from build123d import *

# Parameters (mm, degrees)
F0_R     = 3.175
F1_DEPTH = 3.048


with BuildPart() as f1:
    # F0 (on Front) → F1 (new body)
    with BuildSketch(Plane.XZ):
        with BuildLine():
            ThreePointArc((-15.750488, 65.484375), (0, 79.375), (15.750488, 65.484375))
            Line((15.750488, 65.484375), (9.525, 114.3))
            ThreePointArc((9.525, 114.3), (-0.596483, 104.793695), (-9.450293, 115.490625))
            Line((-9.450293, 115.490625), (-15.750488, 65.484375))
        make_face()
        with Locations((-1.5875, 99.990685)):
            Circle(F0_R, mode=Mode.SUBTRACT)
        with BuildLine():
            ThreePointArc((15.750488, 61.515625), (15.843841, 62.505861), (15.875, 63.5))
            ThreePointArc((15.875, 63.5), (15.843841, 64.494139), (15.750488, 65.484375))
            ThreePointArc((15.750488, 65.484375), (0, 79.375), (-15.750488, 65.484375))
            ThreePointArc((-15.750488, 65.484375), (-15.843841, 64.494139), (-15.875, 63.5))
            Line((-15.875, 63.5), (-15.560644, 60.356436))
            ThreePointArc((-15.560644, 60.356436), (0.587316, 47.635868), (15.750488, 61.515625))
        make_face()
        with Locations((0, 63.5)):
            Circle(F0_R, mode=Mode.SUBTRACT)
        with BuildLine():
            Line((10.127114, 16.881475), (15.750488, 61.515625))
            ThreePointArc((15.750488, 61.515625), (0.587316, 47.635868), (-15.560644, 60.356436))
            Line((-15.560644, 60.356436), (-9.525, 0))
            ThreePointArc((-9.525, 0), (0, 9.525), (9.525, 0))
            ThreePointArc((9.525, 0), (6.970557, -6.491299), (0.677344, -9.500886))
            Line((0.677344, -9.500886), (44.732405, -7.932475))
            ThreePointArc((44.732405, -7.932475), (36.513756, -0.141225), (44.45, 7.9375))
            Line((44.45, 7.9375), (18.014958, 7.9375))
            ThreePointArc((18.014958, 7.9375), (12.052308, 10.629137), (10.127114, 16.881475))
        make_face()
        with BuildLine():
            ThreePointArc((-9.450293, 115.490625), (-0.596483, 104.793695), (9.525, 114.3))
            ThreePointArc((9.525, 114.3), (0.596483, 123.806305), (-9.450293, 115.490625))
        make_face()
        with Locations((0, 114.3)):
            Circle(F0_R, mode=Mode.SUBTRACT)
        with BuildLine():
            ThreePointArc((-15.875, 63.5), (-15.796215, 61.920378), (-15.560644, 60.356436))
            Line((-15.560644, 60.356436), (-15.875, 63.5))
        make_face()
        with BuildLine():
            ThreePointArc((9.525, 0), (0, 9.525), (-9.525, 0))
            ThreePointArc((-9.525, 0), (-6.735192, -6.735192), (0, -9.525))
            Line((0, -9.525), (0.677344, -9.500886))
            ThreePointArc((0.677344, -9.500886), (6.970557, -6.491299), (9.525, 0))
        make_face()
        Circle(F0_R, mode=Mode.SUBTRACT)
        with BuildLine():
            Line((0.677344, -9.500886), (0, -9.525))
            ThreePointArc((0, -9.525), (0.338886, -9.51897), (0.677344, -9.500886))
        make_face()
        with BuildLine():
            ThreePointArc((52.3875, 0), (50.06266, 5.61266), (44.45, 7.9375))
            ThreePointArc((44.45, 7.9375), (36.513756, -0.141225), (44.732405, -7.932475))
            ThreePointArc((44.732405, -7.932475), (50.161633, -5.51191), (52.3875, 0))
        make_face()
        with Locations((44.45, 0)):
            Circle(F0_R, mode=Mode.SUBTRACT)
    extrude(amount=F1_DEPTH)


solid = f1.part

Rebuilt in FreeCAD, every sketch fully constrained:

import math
import FreeCAD as App
import Part
import Sketcher
Q = App.Units.Quantity

doc = App.newDocument("Part")
params = doc.addObject("Spreadsheet::Sheet", "Params")
for row, (alias, value) in enumerate([
    ("sketch1_diameter", "0.25 in"),
    ("sketch1_diameter2", "0.25 in"),
    ("sketch1_diameter3", "0.25 in"),
    ("sketch1_diameter4", "0.25 in"),
    ("sketch1_diameter5", "0.25 in"),
    ("pad1_length", "0.12 in"),
], start=1):
    params.set(f"A{row}", alias)
    params.set(f"B{row}", "=" + value)
    params.setAlias(f"B{row}", alias)

body = doc.addObject("PartDesign::Body", "Body")

# Sketch on XZ plane
sketch1 = body.newObject("Sketcher::SketchObject", "Sketch")
sketch1.AttachmentSupport = (doc.getObject("XZ_Plane"), [""])
sketch1.MapMode = "FlatFace"
sketch1.addGeometry(Part.LineSegment(App.Vector(-9.450293, 115.490625, 0), App.Vector(-15.750488, 65.484375, 0)), False)
sketch1.addGeometry(Part.ArcOfCircle(Part.Circle(App.Vector(0.000171, 63.499987, 0), App.Vector(0, 0, 1), 15.875171), math.radians(172.819275), math.radians(179.999953)), False)
sketch1.addGeometry(Part.ArcOfCircle(Part.Circle(App.Vector(0.000105, 63.500009, 0), App.Vector(0, 0, 1), 15.875105), math.radians(-179.999968), math.radians(-168.57886)), False)
sketch1.addGeometry(Part.LineSegment(App.Vector(-15.560644, 60.356436, 0), App.Vector(-9.525, 0, 0)), False)
sketch1.addGeometry(Part.ArcOfCircle(Part.Circle(App.Vector(0, 0, 0), App.Vector(0, 0, 1), 9.525), math.radians(-179.999998), math.radians(-90.000002)), False)
sketch1.addGeometry(Part.ArcOfCircle(Part.Circle(App.Vector(0.000022, -0.000517, 0), App.Vector(0, 0, 1), 9.524483), math.radians(-90.000132), math.radians(-85.922038)), False)
sketch1.addGeometry(Part.LineSegment(App.Vector(0.677344, -9.500886, 0), App.Vector(44.732405, -7.932475, 0)), False)
sketch1.addGeometry(Part.ArcOfCircle(Part.Circle(App.Vector(44.449999, 0.000001, 0), App.Vector(0, 0, 1), 7.937501), math.radians(-87.961059), math.radians(-0.000005)), False)
sketch1.addGeometry(Part.ArcOfCircle(Part.Circle(App.Vector(44.45, 0, 0), App.Vector(0, 0, 1), 7.9375), math.radians(0.000002), math.radians(89.999998)), False)
sketch1.addGeometry(Part.LineSegment(App.Vector(44.45, 7.9375, 0), App.Vector(18.014958, 7.9375, 0)), False)
sketch1.addGeometry(Part.ArcOfCircle(Part.Circle(App.Vector(18.014958, 15.887699, 0), App.Vector(0, 0, 1), 7.950199), math.radians(172.819238), math.radians(270.000002)), False)
sketch1.addGeometry(Part.LineSegment(App.Vector(10.127114, 16.881475, 0), App.Vector(15.750488, 61.515625, 0)), False)
sketch1.addGeometry(Part.ArcOfCircle(Part.Circle(App.Vector(-0.000171, 63.500013, 0), App.Vector(0, 0, 1), 15.875171), math.radians(-7.180725), math.radians(-0.000047)), False)
sketch1.addGeometry(Part.ArcOfCircle(Part.Circle(App.Vector(-0.000171, 63.499987, 0), App.Vector(0, 0, 1), 15.875171), math.radians(0.000047), math.radians(7.180725)), False)
sketch1.addGeometry(Part.ArcOfCircle(Part.Circle(App.Vector(0, 63.5, 0), App.Vector(0, 0, 1), 15.875), math.radians(7.180755), math.radians(7.354717)), False)
sketch1.addGeometry(Part.LineSegment(App.Vector(15.74439, 65.532188, 0), App.Vector(9.525, 114.3, 0)), False)
sketch1.addGeometry(Part.ArcOfCircle(Part.Circle(App.Vector(0, 114.3, 0), App.Vector(0, 0, 1), 9.525), math.radians(0), math.radians(172.819245)), False)
sketch1.addGeometry(Part.Circle(App.Vector(0, 0, 0), App.Vector(0, 0, 1), 3.175), False)
sketch1.addGeometry(Part.Circle(App.Vector(44.45, 0, 0), App.Vector(0, 0, 1), 3.175), False)
sketch1.addGeometry(Part.Circle(App.Vector(0, 63.5, 0), App.Vector(0, 0, 1), 3.175), False)
sketch1.addGeometry(Part.Circle(App.Vector(-1.5875, 99.990685, 0), App.Vector(0, 0, 1), 3.175), False)
sketch1.addGeometry(Part.Circle(App.Vector(0, 114.3, 0), App.Vector(0, 0, 1), 3.175), False)
sketch1.addConstraint(Sketcher.Constraint("Coincident", 0, 2, 1, 1))
sketch1.addConstraint(Sketcher.Constraint("Coincident", 1, 2, 2, 1))
sketch1.addConstraint(Sketcher.Constraint("Coincident", 2, 2, 3, 1))
sketch1.addConstraint(Sketcher.Constraint("Coincident", 3, 2, 4, 1))
sketch1.addConstraint(Sketcher.Constraint("Coincident", 4, 2, 5, 1))
sketch1.addConstraint(Sketcher.Constraint("Coincident", 5, 2, 6, 1))
sketch1.addConstraint(Sketcher.Constraint("Coincident", 6, 2, 7, 1))
sketch1.addConstraint(Sketcher.Constraint("Coincident", 7, 2, 8, 1))
sketch1.addConstraint(Sketcher.Constraint("Coincident", 8, 2, 9, 1))
sketch1.addConstraint(Sketcher.Constraint("Coincident", 9, 2, 10, 2))
sketch1.addConstraint(Sketcher.Constraint("Coincident", 10, 1, 11, 1))
sketch1.addConstraint(Sketcher.Constraint("Coincident", 11, 2, 12, 1))
sketch1.addConstraint(Sketcher.Constraint("Coincident", 12, 2, 13, 1))
sketch1.addConstraint(Sketcher.Constraint("Coincident", 13, 2, 14, 1))
sketch1.addConstraint(Sketcher.Constraint("Coincident", 14, 2, 15, 1))
sketch1.addConstraint(Sketcher.Constraint("Coincident", 15, 2, 16, 1))
sketch1.addConstraint(Sketcher.Constraint("Coincident", 16, 2, 0, 1))
sketch1.addConstraint(Sketcher.Constraint("Horizontal", 9))
sketch1.addConstraint(Sketcher.Constraint("Coincident", 4, 3, -1, 1))
sketch1.addConstraint(Sketcher.Constraint("Coincident", 17, 3, -1, 1))
sketch1.addConstraint(Sketcher.Constraint("Coincident", 8, 3, 7, 3))
sketch1.addConstraint(Sketcher.Constraint("Coincident", 18, 3, 7, 3))
sketch1.addConstraint(Sketcher.Constraint("Coincident", 19, 3, 14, 3))
sketch1.addConstraint(Sketcher.Constraint("Coincident", 21, 3, 16, 3))
sketch1.addConstraint(Sketcher.Constraint("PointOnObject", 7, 3, -1))
sketch1.addConstraint(Sketcher.Constraint("PointOnObject", 14, 3, -2))
sketch1.addConstraint(Sketcher.Constraint("PointOnObject", 16, 3, -2))
sketch1.addConstraint(Sketcher.Constraint("PointOnObject", 3, 2, -1))
sketch1.addConstraint(Sketcher.Constraint("PointOnObject", 4, 2, -2))
sketch1.addConstraint(Sketcher.Constraint("PointOnObject", 7, 2, -1))
sketch1.addConstraint(Sketcher.Constraint("Diameter", 17, Q("0.25 in")))
sketch1.addConstraint(Sketcher.Constraint("Diameter", 18, Q("0.25 in")))
sketch1.addConstraint(Sketcher.Constraint("Diameter", 19, Q("0.25 in")))
sketch1.addConstraint(Sketcher.Constraint("Diameter", 20, Q("0.25 in")))
sketch1.addConstraint(Sketcher.Constraint("Diameter", 21, Q("0.25 in")))
sketch1.addConstraint(Sketcher.Constraint("Radius", 4, Q("0.375 in")))
sketch1.addConstraint(Sketcher.Constraint("Radius", 7, Q("0.3125 in")))
sketch1.addConstraint(Sketcher.Constraint("Radius", 10, Q("0.313 in")))
sketch1.addConstraint(Sketcher.Constraint("Radius", 14, Q("0.625 in")))
sketch1.addConstraint(Sketcher.Constraint("Radius", 16, Q("0.375 in")))
sketch1.addConstraint(Sketcher.Constraint("DistanceY", 14, 3, 16, 3, Q("2 in")))
sketch1.addConstraint(Sketcher.Constraint("DistanceY", -1, 1, 14, 3, Q("2.5 in")))
sketch1.addConstraint(Sketcher.Constraint("DistanceY", -1, 1, 1, 2, Q("2.5 in")))
sketch1.addConstraint(Sketcher.Constraint("DistanceY", -1, 1, 12, 2, Q("2.5 in")))
sketch1.addConstraint(Sketcher.Constraint("DistanceY", -1, 1, 15, 2, Q("4.5 in")))
sketch1.addConstraint(Sketcher.Constraint("DistanceX", -1, 1, 7, 3, Q("1.75 in")))
sketch1.addConstraint(Sketcher.Constraint("DistanceX", -1, 1, 8, 2, Q("1.75 in")))
sketch1.addConstraint(Sketcher.Constraint("DistanceX", 20, 3, -1, 1, Q("0.0625 in")))
sketch1.addConstraint(Sketcher.Constraint("DistanceY", -1, 1, 0, 2, Q("2.578125 in")))
sketch1.addConstraint(Sketcher.Constraint("DistanceX", 1, 2, -1, 1, Q("0.625 in")))
sketch1.addConstraint(Sketcher.Constraint("DistanceY", -1, 1, 11, 2, Q("2.421875 in")))
sketch1.addConstraint(Sketcher.Constraint("DistanceX", -1, 1, 12, 2, Q("0.625 in")))
sketch1.addConstraint(Sketcher.Constraint("DistanceY", -1, 1, 13, 2, Q("2.578125 in")))
sketch1.addConstraint(Sketcher.Constraint("DistanceY", -1, 1, 16, 2, Q("4.546875 in")))
sketch1.addConstraint(Sketcher.Constraint("Radius", 1, 15.875171))
sketch1.addConstraint(Sketcher.Constraint("Radius", 12, 15.875171))
sketch1.addConstraint(Sketcher.Constraint("Radius", 13, 15.875171))
sketch1.addConstraint(Sketcher.Constraint("Radius", 2, 15.875105))
sketch1.addConstraint(Sketcher.Constraint("Radius", 5, 9.524483))
sketch1.addConstraint(Sketcher.Constraint("DistanceY", 1, 3, 14, 2, 2.032201))
sketch1.addConstraint(Sketcher.Constraint("Distance", 6, 44.082971))
sketch1.addConstraint(Sketcher.Constraint("DistanceX", 9, 2, 9, 1, 26.435042))
sketch1.addConstraint(Sketcher.Constraint("DistanceY", -1, 1, 2, 3, 63.500009))
sketch1.addConstraint(Sketcher.Constraint("DistanceX", 0, 2, -1, 1, 15.750488))
sketch1.addConstraint(Sketcher.Constraint("DistanceX", -1, 1, 11, 2, 15.750488))
sketch1.addConstraint(Sketcher.Constraint("DistanceX", 5, 3, 1, 3, 0.000149))
sketch1.addConstraint(Sketcher.Constraint("DistanceX", 10, 3, 7, 3, 26.435041))
sketch1.addConstraint(Sketcher.Constraint("DistanceY", 2, 2, 0, 2, 5.127939))
sketch1.addConstraint(Sketcher.Constraint("DistanceY", 5, 2, 5, 3, 9.500369))
sketch1.addConstraint(Sketcher.Constraint("DistanceY", 20, 3, 16, 2, 15.49994))
sketch1.addConstraint(Sketcher.Constraint("Distance", 11, 44.986995))
sketch1.setExpression("Constraints[30]", "Params.sketch1_diameter")
sketch1.setExpression("Constraints[31]", "Params.sketch1_diameter2")
sketch1.setExpression("Constraints[32]", "Params.sketch1_diameter3")
sketch1.setExpression("Constraints[33]", "Params.sketch1_diameter4")
sketch1.setExpression("Constraints[34]", "Params.sketch1_diameter5")
pad1 = body.newObject("PartDesign::Pad", "Pad")
pad1.Profile = sketch1
pad1.setExpression("Length", "Params.pad1_length")

doc.recompute()
